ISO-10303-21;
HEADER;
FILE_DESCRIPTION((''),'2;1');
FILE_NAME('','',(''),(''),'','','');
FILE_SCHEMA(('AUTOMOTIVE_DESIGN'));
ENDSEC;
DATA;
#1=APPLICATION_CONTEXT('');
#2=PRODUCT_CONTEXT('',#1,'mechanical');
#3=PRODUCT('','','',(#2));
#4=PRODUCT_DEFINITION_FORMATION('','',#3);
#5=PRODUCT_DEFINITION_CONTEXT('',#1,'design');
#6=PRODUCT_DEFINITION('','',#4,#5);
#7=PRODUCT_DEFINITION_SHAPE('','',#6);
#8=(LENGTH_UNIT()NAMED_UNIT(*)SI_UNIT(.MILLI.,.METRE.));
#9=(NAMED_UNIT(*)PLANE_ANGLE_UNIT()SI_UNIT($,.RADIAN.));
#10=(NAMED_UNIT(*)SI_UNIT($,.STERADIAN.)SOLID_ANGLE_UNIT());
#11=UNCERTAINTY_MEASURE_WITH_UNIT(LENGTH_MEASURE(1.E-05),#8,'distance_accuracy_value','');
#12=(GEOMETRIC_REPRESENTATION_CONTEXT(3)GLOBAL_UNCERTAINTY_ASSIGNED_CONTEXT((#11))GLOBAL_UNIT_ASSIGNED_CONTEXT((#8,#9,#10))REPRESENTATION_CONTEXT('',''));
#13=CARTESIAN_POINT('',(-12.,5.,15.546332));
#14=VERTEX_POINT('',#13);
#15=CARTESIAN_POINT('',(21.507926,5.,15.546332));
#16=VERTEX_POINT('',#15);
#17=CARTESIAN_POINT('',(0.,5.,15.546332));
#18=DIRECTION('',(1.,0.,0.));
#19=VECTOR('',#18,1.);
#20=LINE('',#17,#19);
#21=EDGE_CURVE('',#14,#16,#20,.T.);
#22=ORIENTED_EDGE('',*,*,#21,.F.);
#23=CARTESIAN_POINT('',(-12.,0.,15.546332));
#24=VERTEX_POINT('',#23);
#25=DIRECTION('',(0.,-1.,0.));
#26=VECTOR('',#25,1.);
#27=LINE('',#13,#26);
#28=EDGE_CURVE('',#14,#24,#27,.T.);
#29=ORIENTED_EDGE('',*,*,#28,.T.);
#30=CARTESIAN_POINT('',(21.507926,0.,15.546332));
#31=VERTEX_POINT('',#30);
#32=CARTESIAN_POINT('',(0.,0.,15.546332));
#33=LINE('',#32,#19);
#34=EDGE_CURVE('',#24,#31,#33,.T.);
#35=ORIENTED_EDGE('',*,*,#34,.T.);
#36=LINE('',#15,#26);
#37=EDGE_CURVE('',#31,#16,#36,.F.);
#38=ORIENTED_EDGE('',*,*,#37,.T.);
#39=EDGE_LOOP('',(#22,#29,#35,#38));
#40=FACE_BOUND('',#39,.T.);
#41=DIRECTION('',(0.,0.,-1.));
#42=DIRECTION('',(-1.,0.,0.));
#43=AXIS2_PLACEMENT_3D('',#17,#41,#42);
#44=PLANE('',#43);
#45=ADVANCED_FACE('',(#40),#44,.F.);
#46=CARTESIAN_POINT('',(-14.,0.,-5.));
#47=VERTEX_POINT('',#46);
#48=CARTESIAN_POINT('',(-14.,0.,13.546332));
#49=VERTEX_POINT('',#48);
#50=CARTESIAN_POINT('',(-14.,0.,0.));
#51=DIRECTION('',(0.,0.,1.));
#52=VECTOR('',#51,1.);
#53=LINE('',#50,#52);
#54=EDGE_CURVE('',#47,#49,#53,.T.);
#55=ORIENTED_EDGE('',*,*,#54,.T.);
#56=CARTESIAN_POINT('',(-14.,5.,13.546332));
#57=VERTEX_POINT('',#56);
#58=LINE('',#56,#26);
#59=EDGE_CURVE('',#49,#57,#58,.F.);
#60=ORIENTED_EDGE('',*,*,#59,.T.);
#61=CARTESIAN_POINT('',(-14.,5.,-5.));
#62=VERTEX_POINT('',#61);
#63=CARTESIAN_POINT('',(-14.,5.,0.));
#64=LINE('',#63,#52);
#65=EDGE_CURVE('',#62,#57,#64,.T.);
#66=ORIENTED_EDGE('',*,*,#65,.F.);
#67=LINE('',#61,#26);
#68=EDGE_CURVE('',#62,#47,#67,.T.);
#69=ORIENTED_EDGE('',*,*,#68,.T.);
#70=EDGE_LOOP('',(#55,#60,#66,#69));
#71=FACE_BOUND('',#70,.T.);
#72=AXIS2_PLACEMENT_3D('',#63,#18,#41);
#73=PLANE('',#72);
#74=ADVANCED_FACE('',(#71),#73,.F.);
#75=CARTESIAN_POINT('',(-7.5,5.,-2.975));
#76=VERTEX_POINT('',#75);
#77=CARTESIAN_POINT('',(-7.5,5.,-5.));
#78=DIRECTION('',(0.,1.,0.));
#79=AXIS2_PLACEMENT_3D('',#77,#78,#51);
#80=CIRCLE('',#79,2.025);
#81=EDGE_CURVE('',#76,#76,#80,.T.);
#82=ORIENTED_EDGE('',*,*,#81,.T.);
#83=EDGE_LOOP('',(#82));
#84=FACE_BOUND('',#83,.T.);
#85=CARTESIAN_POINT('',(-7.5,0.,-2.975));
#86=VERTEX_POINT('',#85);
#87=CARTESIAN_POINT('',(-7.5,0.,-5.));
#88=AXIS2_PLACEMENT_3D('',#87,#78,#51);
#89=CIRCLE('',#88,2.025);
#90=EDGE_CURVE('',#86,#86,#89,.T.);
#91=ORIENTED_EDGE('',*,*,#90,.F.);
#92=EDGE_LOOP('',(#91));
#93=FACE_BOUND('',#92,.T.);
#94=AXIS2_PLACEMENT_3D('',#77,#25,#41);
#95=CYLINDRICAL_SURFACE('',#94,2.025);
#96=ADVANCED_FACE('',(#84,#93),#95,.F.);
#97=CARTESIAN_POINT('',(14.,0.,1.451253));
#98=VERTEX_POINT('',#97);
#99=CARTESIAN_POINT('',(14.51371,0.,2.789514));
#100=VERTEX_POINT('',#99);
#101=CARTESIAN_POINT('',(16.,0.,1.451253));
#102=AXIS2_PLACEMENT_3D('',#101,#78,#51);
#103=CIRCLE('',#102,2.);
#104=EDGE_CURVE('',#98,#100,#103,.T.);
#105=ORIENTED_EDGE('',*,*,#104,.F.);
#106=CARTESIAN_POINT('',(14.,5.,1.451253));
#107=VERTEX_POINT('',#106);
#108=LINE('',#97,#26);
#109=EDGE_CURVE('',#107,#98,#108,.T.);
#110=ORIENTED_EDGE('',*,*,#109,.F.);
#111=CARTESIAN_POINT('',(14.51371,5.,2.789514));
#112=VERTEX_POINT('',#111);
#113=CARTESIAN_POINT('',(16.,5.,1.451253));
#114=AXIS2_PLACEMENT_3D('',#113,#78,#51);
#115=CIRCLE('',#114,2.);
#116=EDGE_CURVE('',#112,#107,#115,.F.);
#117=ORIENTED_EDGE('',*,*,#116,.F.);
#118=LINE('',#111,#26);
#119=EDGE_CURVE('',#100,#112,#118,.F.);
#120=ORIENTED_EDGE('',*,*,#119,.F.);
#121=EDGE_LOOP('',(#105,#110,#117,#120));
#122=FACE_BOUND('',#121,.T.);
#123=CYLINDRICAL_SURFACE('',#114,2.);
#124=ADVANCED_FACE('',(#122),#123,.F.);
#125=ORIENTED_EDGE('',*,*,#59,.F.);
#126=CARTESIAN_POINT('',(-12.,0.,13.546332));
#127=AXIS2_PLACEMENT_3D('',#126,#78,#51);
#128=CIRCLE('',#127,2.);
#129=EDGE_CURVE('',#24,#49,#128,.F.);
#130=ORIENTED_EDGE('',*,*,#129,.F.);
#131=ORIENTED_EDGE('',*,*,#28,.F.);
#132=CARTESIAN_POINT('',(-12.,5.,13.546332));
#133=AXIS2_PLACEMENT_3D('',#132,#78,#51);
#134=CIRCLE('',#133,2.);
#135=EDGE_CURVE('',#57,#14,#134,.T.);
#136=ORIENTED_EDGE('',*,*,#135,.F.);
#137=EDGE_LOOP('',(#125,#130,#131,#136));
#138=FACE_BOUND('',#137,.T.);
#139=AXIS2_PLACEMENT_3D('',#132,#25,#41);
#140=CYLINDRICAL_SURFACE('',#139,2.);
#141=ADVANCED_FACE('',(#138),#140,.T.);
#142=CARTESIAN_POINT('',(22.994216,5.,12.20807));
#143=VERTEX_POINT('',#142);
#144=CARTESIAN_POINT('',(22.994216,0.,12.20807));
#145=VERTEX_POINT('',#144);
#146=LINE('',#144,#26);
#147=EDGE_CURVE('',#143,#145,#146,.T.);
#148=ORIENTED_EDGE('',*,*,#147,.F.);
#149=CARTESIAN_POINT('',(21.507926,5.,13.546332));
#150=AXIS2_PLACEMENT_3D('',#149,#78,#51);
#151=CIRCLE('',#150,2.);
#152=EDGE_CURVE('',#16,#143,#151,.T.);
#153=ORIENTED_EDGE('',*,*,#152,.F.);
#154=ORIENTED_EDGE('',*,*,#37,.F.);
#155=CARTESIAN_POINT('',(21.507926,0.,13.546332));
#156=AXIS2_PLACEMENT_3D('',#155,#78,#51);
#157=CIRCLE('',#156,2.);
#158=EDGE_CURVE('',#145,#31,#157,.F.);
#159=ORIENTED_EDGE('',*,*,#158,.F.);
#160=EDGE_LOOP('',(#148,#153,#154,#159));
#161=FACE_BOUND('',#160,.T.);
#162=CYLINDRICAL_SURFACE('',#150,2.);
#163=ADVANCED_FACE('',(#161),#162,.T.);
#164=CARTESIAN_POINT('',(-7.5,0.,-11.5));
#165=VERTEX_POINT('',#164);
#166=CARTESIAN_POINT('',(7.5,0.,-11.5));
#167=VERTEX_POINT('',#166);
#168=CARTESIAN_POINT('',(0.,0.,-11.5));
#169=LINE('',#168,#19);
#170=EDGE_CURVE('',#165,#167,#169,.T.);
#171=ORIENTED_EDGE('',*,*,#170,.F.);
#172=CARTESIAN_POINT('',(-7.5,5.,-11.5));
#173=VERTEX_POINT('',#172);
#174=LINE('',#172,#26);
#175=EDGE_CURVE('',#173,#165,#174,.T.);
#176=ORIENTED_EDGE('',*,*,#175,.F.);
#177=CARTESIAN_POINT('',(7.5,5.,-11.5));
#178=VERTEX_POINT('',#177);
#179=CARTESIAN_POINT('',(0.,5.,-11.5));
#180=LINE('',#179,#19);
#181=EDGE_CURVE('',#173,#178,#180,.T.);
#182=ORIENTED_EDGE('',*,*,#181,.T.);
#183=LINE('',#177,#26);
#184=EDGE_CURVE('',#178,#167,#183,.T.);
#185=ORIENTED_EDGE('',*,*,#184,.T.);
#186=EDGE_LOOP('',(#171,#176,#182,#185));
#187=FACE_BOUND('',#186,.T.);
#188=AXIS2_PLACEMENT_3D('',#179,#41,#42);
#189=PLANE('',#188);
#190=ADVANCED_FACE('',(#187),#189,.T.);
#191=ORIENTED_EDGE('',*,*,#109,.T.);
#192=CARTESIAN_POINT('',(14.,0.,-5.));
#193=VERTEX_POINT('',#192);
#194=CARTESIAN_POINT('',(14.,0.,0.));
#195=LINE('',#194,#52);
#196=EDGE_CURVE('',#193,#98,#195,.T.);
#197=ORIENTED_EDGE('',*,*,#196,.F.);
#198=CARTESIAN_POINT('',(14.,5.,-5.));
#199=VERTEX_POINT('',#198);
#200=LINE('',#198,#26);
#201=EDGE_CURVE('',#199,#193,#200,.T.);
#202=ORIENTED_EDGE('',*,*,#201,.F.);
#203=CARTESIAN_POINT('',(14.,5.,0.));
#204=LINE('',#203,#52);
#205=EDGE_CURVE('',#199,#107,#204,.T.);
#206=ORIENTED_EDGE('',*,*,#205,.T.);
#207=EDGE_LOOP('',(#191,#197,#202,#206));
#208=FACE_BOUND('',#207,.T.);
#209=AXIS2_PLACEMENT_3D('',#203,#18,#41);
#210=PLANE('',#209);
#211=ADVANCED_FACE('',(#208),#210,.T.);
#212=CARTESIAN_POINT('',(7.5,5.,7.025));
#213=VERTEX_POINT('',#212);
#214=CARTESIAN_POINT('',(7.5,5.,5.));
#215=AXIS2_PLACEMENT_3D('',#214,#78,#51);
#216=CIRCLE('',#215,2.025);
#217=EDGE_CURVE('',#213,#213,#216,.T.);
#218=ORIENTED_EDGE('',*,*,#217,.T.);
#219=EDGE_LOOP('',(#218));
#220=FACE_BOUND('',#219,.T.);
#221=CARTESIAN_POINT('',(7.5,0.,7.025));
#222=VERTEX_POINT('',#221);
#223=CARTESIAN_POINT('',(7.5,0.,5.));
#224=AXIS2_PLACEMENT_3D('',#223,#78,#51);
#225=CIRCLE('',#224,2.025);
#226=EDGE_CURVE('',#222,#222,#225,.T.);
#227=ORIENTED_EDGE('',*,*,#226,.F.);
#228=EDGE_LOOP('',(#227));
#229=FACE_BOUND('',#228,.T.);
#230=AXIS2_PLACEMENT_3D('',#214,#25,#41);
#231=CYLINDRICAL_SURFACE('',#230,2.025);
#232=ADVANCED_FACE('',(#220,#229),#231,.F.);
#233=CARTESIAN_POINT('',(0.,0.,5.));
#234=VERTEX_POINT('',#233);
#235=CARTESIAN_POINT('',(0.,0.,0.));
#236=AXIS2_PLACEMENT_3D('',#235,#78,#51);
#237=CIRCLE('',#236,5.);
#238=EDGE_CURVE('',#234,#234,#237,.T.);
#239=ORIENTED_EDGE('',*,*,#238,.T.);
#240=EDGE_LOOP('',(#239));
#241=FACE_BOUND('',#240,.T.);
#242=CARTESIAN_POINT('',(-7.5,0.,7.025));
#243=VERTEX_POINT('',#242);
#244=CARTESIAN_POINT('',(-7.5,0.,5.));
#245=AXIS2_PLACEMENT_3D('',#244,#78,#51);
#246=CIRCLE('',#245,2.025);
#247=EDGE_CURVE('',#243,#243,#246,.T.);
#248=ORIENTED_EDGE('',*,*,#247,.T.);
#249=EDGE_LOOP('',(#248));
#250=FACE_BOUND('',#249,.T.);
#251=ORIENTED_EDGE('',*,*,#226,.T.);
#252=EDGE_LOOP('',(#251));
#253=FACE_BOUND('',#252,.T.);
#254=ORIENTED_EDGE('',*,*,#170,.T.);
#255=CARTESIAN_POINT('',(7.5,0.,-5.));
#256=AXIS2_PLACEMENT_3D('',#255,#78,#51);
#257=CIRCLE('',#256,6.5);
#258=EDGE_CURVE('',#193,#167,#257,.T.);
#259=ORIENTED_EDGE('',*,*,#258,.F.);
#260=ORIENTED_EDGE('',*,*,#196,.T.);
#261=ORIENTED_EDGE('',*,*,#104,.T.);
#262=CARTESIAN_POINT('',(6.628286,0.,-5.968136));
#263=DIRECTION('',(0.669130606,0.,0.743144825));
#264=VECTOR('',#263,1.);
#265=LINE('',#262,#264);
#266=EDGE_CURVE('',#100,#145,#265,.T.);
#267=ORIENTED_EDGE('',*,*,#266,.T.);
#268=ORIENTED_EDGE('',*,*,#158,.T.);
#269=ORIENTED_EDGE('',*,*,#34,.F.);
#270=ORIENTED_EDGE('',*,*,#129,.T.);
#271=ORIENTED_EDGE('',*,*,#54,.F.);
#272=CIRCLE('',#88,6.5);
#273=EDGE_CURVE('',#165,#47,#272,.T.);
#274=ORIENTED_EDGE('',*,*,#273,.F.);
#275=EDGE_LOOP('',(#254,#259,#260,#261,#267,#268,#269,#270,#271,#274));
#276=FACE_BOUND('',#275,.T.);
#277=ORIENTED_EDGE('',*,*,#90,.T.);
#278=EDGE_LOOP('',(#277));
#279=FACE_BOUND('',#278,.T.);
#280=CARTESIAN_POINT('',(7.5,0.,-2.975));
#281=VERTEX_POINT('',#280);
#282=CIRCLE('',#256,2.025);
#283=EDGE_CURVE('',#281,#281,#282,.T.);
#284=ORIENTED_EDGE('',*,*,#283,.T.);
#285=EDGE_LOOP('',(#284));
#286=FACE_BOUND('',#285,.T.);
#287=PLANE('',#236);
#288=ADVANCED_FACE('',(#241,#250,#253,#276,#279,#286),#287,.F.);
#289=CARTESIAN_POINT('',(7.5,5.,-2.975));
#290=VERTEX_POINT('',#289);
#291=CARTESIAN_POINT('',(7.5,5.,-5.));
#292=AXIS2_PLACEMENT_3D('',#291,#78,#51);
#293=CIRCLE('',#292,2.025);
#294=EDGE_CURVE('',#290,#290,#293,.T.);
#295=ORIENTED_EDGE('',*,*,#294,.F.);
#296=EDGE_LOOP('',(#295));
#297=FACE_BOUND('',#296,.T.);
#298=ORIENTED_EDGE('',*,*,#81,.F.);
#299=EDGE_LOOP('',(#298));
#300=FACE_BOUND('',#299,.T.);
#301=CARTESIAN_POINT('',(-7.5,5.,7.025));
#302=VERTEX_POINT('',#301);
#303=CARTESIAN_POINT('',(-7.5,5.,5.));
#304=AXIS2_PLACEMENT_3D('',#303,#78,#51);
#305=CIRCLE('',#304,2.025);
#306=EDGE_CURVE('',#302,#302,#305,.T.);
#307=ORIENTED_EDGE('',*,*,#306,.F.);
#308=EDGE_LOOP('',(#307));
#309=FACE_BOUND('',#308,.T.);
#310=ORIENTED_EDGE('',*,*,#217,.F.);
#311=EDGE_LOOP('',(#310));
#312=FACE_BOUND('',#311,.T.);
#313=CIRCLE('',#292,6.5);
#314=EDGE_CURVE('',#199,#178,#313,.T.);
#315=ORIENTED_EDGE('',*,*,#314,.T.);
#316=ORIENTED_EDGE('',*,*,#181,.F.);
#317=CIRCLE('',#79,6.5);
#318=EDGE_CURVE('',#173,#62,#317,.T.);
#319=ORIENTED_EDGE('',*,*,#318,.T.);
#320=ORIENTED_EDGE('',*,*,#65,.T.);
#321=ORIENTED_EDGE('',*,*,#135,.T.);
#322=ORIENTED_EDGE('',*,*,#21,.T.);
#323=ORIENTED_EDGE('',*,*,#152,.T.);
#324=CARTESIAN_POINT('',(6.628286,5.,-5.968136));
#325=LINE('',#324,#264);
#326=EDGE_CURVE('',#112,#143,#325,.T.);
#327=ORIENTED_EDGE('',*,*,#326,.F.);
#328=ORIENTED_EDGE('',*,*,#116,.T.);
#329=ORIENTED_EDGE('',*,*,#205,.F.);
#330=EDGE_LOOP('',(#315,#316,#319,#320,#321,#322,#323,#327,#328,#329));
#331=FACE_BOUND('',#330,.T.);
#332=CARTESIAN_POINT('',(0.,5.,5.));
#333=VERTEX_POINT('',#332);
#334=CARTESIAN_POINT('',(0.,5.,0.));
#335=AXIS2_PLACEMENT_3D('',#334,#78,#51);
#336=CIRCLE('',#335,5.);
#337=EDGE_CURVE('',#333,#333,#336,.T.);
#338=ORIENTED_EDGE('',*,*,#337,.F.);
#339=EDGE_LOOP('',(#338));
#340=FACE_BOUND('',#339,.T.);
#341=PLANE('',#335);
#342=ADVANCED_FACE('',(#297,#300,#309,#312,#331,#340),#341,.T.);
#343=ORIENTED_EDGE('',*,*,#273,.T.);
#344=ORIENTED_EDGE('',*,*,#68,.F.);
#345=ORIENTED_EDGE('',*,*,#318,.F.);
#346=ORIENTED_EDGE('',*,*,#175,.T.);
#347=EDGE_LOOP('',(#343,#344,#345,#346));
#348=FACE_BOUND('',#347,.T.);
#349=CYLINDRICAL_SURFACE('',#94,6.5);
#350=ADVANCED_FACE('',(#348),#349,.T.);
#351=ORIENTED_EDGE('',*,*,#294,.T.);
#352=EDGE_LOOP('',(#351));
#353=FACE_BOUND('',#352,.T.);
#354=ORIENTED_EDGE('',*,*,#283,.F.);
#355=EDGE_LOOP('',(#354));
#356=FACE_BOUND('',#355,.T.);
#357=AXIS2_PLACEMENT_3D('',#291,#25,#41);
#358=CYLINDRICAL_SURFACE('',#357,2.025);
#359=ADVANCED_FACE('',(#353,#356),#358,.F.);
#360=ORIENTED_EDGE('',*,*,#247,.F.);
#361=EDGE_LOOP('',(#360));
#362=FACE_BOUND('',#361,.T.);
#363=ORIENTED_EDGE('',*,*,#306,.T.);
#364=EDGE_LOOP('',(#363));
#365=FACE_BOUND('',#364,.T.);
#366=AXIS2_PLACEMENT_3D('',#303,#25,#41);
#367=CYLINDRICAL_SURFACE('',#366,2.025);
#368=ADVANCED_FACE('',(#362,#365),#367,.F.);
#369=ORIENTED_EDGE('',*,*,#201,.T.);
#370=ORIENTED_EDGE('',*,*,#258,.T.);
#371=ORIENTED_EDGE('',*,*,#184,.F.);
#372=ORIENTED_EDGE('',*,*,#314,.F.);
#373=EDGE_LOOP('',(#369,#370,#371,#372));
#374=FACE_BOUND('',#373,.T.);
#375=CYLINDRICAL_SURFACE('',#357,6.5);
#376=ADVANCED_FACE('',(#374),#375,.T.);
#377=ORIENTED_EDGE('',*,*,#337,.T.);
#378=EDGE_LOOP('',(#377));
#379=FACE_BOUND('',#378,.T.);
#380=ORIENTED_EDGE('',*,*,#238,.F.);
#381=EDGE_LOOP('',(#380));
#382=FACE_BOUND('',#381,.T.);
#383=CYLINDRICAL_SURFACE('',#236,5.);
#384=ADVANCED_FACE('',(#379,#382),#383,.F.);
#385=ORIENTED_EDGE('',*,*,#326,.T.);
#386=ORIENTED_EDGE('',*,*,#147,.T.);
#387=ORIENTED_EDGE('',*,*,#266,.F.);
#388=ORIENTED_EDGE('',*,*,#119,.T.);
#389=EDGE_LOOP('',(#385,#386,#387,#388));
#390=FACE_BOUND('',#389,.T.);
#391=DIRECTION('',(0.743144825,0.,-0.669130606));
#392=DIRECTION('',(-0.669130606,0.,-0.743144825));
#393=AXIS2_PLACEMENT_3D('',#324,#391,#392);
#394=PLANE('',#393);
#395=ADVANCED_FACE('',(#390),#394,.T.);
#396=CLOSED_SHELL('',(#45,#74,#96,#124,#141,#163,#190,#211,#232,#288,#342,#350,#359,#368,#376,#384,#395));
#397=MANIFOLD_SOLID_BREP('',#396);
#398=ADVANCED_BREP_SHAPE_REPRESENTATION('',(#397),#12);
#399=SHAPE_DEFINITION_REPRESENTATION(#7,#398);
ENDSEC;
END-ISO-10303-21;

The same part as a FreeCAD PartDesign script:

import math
import FreeCAD as App
import Part
import Sketcher

V = App.Vector
Q = App.Units.Quantity


def edges_at(feature, points):
    """Names of the edges that pass closest to the given points."""
    edges = feature.Shape.Edges
    near = lambda p: min(range(len(edges)), key=lambda i: edges[i].distToShape(Part.Vertex(*p))[0])
    return sorted({f"Edge{near(p) + 1}" for p in points})

doc = App.newDocument("Part")
body = doc.addObject("PartDesign::Body", "Body")

# Sketch on XZ plane
sketch1 = body.newObject("Sketcher::SketchObject", "Sketch")
sketch1.AttachmentSupport = (doc.getObject("XZ_Plane"), [""])
sketch1.MapMode = "FlatFace"
sketch1.addGeometry([
    Part.LineSegment(V(7.5, -11.5, 0), V(-7.5, -11.5, 0)),  # 0
    Part.ArcOfCircle(Part.Circle(V(-7.5, -5, 0), V(0, 0, 1), 6.5), math.radians(180), math.radians(270)),  # 1
    Part.LineSegment(V(-14, -5, 0), V(-14, 15.546332, 0)),  # 2
    Part.LineSegment(V(-14, 15.546332, 0), V(26, 15.546332, 0)),  # 3
    Part.LineSegment(V(26, 15.546332, 0), V(14, 2.218981, 0)),  # 4
    Part.LineSegment(V(14, 2.218981, 0), V(14, -5, 0)),  # 5
    Part.ArcOfCircle(Part.Circle(V(7.5, -5, 0), V(0, 0, 1), 6.5), math.radians(-90), math.radians(0)),  # 6
    Part.Circle(V(-7.5, 5, 0), V(0, 0, 1), 2.025),  # 7
    Part.Circle(V(7.5, 5, 0), V(0, 0, 1), 2.025),  # 8
    Part.Circle(V(-7.5, -5, 0), V(0, 0, 1), 2.025),  # 9
    Part.Circle(V(7.5, -5, 0), V(0, 0, 1), 2.025),  # 10
], False)
sketch1.addConstraint([
    Sketcher.Constraint("Tangent", 0, 2, 1, 2),
    Sketcher.Constraint("Tangent", 1, 1, 2, 1),
    Sketcher.Constraint("Coincident", 2, 2, 3, 1),
    Sketcher.Constraint("Coincident", 3, 2, 4, 1),
    Sketcher.Constraint("Coincident", 4, 2, 5, 1),
    Sketcher.Constraint("Tangent", 5, 2, 6, 2),
    Sketcher.Constraint("Tangent", 6, 1, 0, 1),
    Sketcher.Constraint("Horizontal", 0),
    Sketcher.Constraint("Vertical", 2),
    Sketcher.Constraint("Horizontal", 3),
    Sketcher.Constraint("Vertical", 5),
    Sketcher.Constraint("Coincident", 9, 3, 1, 3),
    Sketcher.Constraint("Coincident", 10, 3, 6, 3),
    Sketcher.Constraint("Equal", 1, 6),
    Sketcher.Constraint("Equal", 7, 8),
    Sketcher.Constraint("Equal", 8, 9),
    Sketcher.Constraint("Equal", 9, 10),
    Sketcher.Constraint("Symmetric", 6, 3, 7, 3, -1, 1),
    Sketcher.Constraint("Symmetric", 1, 3, 8, 3, -1, 1),
    Sketcher.Constraint("Vertical", 1, 3, 7, 3),
    Sketcher.Constraint("Radius", 1, 6.5),
    Sketcher.Constraint("Diameter", 7, 4.05),
    Sketcher.Constraint("DistanceX", 0, 2, 0, 1, 15.0),
    Sketcher.Constraint("DistanceX", 3, 1, 3, 2, 40.0),
    Sketcher.Constraint("Angle", 4, Q("-132 deg")),
    Sketcher.Constraint("DistanceY", 1, 3, -1, 1, 5.0),
    Sketcher.Constraint("DistanceY", 2, 1, 2, 2, 20.546332),
])
pad1 = body.newObject("PartDesign::Pad", "Pad")
pad1.Profile = sketch1
pad1.Length = 5
pad1.Reversed = True
doc.recompute()

fillet = body.newObject("PartDesign::Fillet", "Fillet")
fillet.Base = (pad1, edges_at(pad1, [(14, 2.5, 2.219), (26, 2.5, 15.546), (-14, 2.5, 15.546)]))
fillet.Radius = 2

# Sketch on XZ plane
sketch2 = body.newObject("Sketcher::SketchObject", "Sketch001")
sketch2.AttachmentSupport = (doc.getObject("XZ_Plane"), [""])
sketch2.MapMode = "FlatFace"
sketch2.AttachmentOffset = App.Placement(V(0, 0, -5), App.Rotation())
sketch2.addGeometry(Part.Circle(V(0, 0, 0), V(0, 0, 1), 5), False)
sketch2.addConstraint([
    Sketcher.Constraint("Coincident", 0, 3, -1, 1),
    Sketcher.Constraint("Diameter", 0, 10.0),
])
pocket1 = body.newObject("PartDesign::Pocket", "Pocket")
pocket1.Profile = sketch2
pocket1.Length = 5
pocket1.Reversed = True

doc.recompute()
